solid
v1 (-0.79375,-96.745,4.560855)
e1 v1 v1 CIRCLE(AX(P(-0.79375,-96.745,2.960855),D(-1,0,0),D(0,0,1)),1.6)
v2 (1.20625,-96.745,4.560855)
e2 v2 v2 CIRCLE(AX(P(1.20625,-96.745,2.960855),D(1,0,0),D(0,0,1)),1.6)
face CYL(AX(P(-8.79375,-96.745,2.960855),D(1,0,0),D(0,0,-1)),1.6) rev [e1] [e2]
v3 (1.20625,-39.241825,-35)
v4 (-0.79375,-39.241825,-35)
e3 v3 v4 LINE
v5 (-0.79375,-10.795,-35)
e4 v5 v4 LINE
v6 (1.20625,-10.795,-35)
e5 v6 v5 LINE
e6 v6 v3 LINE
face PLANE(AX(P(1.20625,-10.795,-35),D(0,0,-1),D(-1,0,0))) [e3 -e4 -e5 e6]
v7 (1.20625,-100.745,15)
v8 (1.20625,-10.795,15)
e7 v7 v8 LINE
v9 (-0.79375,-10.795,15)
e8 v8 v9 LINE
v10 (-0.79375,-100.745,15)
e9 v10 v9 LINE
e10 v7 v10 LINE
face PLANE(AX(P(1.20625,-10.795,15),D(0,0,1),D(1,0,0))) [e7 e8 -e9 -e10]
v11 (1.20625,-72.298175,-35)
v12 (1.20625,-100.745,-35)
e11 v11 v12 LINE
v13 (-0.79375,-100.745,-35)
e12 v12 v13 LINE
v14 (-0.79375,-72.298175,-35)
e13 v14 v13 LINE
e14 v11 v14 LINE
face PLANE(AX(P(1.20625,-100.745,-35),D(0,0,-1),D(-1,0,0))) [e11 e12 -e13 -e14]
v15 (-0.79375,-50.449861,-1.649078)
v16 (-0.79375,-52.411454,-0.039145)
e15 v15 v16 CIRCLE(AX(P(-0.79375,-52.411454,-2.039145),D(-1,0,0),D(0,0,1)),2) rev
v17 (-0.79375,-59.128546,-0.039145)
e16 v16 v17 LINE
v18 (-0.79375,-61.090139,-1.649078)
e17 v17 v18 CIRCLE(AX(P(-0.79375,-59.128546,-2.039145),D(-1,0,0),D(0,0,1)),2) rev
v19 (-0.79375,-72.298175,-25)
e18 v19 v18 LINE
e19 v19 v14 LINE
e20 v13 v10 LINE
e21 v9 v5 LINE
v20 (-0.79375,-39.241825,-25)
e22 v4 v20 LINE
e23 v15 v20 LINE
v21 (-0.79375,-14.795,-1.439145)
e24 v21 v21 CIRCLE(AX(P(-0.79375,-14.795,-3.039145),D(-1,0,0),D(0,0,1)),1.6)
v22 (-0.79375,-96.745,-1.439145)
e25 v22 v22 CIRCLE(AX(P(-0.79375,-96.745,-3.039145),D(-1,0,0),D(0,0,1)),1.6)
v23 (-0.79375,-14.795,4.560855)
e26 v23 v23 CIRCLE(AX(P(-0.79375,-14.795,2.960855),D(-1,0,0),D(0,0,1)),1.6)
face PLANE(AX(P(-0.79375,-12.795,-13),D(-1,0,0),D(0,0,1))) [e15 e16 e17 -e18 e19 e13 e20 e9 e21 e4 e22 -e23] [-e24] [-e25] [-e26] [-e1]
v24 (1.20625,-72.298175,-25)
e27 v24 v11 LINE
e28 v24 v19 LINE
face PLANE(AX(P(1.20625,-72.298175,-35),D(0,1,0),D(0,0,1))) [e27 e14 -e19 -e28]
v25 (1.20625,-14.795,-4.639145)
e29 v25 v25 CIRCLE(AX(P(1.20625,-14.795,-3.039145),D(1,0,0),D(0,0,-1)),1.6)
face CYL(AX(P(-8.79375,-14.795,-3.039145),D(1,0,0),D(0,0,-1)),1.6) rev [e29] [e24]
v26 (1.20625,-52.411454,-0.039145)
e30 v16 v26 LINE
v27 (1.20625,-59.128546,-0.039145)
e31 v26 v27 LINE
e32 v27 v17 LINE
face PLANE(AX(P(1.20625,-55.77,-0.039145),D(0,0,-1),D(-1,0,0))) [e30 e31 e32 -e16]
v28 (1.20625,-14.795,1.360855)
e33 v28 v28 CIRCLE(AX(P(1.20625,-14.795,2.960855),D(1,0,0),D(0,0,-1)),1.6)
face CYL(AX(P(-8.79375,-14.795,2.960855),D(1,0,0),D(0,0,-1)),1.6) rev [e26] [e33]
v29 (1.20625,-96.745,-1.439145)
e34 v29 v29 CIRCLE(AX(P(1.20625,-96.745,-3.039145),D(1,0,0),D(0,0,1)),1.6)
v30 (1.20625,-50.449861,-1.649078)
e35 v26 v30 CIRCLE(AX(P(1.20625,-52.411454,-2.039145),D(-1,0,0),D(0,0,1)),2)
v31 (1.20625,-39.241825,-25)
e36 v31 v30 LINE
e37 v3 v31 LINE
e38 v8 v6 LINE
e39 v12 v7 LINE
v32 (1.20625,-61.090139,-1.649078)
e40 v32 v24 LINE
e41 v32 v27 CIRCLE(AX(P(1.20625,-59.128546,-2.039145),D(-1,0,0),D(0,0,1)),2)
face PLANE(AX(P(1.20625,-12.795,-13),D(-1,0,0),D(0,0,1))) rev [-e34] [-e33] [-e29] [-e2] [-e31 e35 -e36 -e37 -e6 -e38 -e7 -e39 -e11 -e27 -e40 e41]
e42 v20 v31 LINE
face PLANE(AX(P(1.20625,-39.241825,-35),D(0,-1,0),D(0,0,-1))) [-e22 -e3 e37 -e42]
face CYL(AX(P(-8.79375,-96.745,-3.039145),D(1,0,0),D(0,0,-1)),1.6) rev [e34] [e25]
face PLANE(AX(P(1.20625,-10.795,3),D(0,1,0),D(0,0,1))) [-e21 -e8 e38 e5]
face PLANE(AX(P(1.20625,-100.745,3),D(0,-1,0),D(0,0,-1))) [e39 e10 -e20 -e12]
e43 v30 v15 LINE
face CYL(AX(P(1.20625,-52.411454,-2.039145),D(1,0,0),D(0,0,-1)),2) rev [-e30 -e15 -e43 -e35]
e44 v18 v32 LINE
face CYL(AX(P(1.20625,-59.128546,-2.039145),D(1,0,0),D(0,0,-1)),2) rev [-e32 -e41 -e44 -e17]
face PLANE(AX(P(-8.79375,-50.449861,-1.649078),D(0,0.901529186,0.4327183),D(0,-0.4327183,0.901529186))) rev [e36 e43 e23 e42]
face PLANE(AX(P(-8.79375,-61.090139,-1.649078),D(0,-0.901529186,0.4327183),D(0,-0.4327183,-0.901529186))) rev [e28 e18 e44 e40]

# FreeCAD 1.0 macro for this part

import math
import FreeCAD as App
import Part
import Sketcher

V = App.Vector
Q = App.Units.Quantity


def edges_at(feature, points):
    """Names of the edges that pass closest to the given points."""
    edges = feature.Shape.Edges
    near = lambda p: min(range(len(edges)), key=lambda i: edges[i].distToShape(Part.Vertex(*p))[0])
    return sorted({f"Edge{near(p) + 1}" for p in points})

doc = App.newDocument("Part")
params = doc.addObject("Spreadsheet::Sheet", "Params")
for row, (alias, value) in enumerate([
    ("sketch1_radius", "2 mm"),
    ("sketch1_width", "35 mm"),
    ("sketch1_width2", "10 mm"),
    ("sketch1_height", "16 mm"),
    ("sketch1_width3", "85.95 mm"),
    ("pad1_length", "2 mm"),
    ("fillet_radius", "2 mm"),
    ("fillet2_radius", "2 mm"),
    ("fillet3_radius", "2 mm"),
    ("fillet4_radius", "2 mm"),
    ("sketch2_height", "12 mm"),
    ("sketch2_width", "89.95 mm"),
    ("pad2_length", "2 mm"),
    ("pocket1_length", "10 mm"),
    ("sketch4_diameter", "3.2 mm"),
    ("pocket2_length", "10 mm"),
    ("sketch5_height", "10 mm"),
    ("pad3_length", "2 mm"),
], start=1):
    params.set(f"A{row}", alias)
    params.set(f"B{row}", "=" + value)
    params.setAlias(f"B{row}", alias)

body = doc.addObject("PartDesign::Body", "Body")

# Sketch on YZ plane
sketch1 = doc.addObject("Sketcher::SketchObject", "Sketch")
body.addObject(sketch1)
sketch1.AttachmentSupport = (doc.YZ_Plane, [""])
sketch1.MapMode = "FlatFace"
sketch1.AttachmentOffset = App.Placement(V(0, 0, -0.79375), App.Rotation())
sketch1.addGeometry([
    Part.ArcOfCircle(Part.Circle(V(-12.8, 3, 0), V(0, 0, 1), 2), math.radians(0), math.radians(90)),  # 0
    Part.LineSegment(V(-10.8, 3, 0), V(-10.8, -13, 0)),  # 1
    Part.ArcOfCircle(Part.Circle(V(-12.8, -13, 0), V(0, 0, 1), 2), math.radians(-90), math.radians(0)),  # 2
    Part.LineSegment(V(-12.8, -15, 0), V(-47.8, -15, 0)),  # 3
    Part.LineSegment(V(-47.8, -15, 0), V(-50.8, 0, 0)),  # 4
    Part.LineSegment(V(-50.8, 0, 0), V(-60.8, 0, 0)),  # 5
    Part.LineSegment(V(-60.8, 0, 0), V(-63.7, -15, 0)),  # 6
    Part.LineSegment(V(-63.7, -15, 0), V(-98.7, -15, 0)),  # 7
    Part.ArcOfCircle(Part.Circle(V(-98.7, -13, 0), V(0, 0, 1), 2), math.radians(-180), math.radians(-90)),  # 8
    Part.LineSegment(V(-100.7, -13, 0), V(-100.7, 3, 0)),  # 9
    Part.ArcOfCircle(Part.Circle(V(-98.7, 3, 0), V(0, 0, 1), 2), math.radians(90), math.radians(180)),  # 10
    Part.LineSegment(V(-98.7, 5, 0), V(-12.8, 5, 0)),  # 11
], False)
sketch1.addConstraint([
    Sketcher.Constraint("Tangent", 0, 1, 1, 1),
    Sketcher.Constraint("Tangent", 1, 2, 2, 2),
    Sketcher.Constraint("Tangent", 2, 1, 3, 1),
    Sketcher.Constraint("Coincident", 3, 2, 4, 1),
    Sketcher.Constraint("Coincident", 4, 2, 5, 1),
    Sketcher.Constraint("Coincident", 5, 2, 6, 1),
    Sketcher.Constraint("Coincident", 6, 2, 7, 1),
    Sketcher.Constraint("Tangent", 7, 2, 8, 2),
    Sketcher.Constraint("Tangent", 8, 1, 9, 1),
    Sketcher.Constraint("Tangent", 9, 2, 10, 2),
    Sketcher.Constraint("Tangent", 10, 1, 11, 1),
    Sketcher.Constraint("Tangent", 11, 2, 0, 2),
    Sketcher.Constraint("Vertical", 1),
    Sketcher.Constraint("Horizontal", 3),
    Sketcher.Constraint("Horizontal", 5),
    Sketcher.Constraint("Horizontal", 7),
    Sketcher.Constraint("Vertical", 9),
    Sketcher.Constraint("Horizontal", 11),
    Sketcher.Constraint("Equal", 0, 2),
    Sketcher.Constraint("Equal", 2, 8),
    Sketcher.Constraint("Equal", 8, 10),
    Sketcher.Constraint("Horizontal", 2, 3, 8, 3),
    Sketcher.Constraint("Equal", 3, 7),
    Sketcher.Constraint("Equal", 4, 6),
    Sketcher.Constraint("Radius", 0, Q("2 mm")),
    Sketcher.Constraint("DistanceX", 3, 2, 3, 1, Q("35 mm")),
    Sketcher.Constraint("DistanceX", 5, 2, 5, 1, Q("10 mm")),
    Sketcher.Constraint("DistanceY", 1, 2, 1, 1, Q("16 mm")),
    Sketcher.Constraint("DistanceY", -1, 1, 0, 3, Q("3 mm")),
    Sketcher.Constraint("DistanceX", 11, 1, 11, 2, Q("85.95 mm")),
    Sketcher.Constraint("DistanceX", 4, 2, -1, 1, Q("50.77 mm")),
    Sketcher.Constraint("Distance", 4, Q("15.25378 mm")),
])
sketch1.setExpression("Constraints[24]", "Params.sketch1_radius")
sketch1.setExpression("Constraints[25]", "Params.sketch1_width")
sketch1.setExpression("Constraints[26]", "Params.sketch1_width2")
sketch1.setExpression("Constraints[27]", "Params.sketch1_height")
sketch1.setExpression("Constraints[29]", "Params.sketch1_width3")
pad1 = doc.addObject("PartDesign::Pad", "Pad")
body.addObject(pad1)
pad1.Profile = sketch1
pad1.setExpression("Length", "Params.pad1_length")
doc.recompute()

fillet = doc.addObject("PartDesign::Fillet", "Fillet")
body.addObject(fillet)
fillet.Base = (pad1, edges_at(pad1, [(0.206, -50.77, -0.039)]))
fillet.setExpression("Radius", "Params.fillet_radius")
doc.recompute()

fillet2 = doc.addObject("PartDesign::Fillet", "Fillet001")
body.addObject(fillet2)
fillet2.Base = (fillet, edges_at(fillet, [(0.206, -47.795, -15)]))
fillet2.setExpression("Radius", "Params.fillet2_radius")
doc.recompute()

fillet3 = doc.addObject("PartDesign::Fillet", "Fillet002")
body.addObject(fillet3)
fillet3.Base = (fillet2, edges_at(fillet2, [(0.206, -60.77, -0.039)]))
fillet3.setExpression("Radius", "Params.fillet3_radius")
doc.recompute()

fillet4 = doc.addObject("PartDesign::Fillet", "Fillet003")
body.addObject(fillet4)
fillet4.Base = (fillet3, edges_at(fillet3, [(0.206, -63.745, -15)]))
fillet4.setExpression("Radius", "Params.fillet4_radius")

# Sketch on YZ plane
sketch2 = doc.addObject("Sketcher::SketchObject", "Sketch001")
body.addObject(sketch2)
sketch2.AttachmentSupport = (doc.YZ_Plane, [""])
sketch2.MapMode = "FlatFace"
sketch2.AttachmentOffset = App.Placement(V(0, 0, -0.79375), App.Rotation())
sketch2.addGeometry([
    Part.LineSegment(V(-11, 3, 0), V(-101, 3, 0)),  # 0
    Part.LineSegment(V(-101, 3, 0), V(-101, 15, 0)),  # 1
    Part.LineSegment(V(-101, 15, 0), V(-11, 15, 0)),  # 2
    Part.LineSegment(V(-11, 15, 0), V(-11, 3, 0)),  # 3
    Part.LineSegment(V(-11, -25, 0), V(-46, -25, 0)),  # 4
    Part.LineSegment(V(-46, -25, 0), V(-48, -13, 0)),  # 5
    Part.LineSegment(V(-48, -13, 0), V(-11, -13, 0)),  # 6
    Part.LineSegment(V(-11, -13, 0), V(-11, -25, 0)),  # 7
    Part.LineSegment(V(-63, -13, 0), V(-66, -25, 0)),  # 8
    Part.LineSegment(V(-66, -25, 0), V(-101, -25, 0)),  # 9
    Part.LineSegment(V(-101, -25, 0), V(-101, -13, 0)),  # 10
    Part.LineSegment(V(-101, -13, 0), V(-63, -13, 0)),  # 11
], False)
sketch2.addConstraint([
    Sketcher.Constraint("Coincident", 0, 2, 1, 1),
    Sketcher.Constraint("Coincident", 1, 2, 2, 1),
    Sketcher.Constraint("Coincident", 2, 2, 3, 1),
    Sketcher.Constraint("Coincident", 3, 2, 0, 1),
    Sketcher.Constraint("Coincident", 4, 2, 5, 1),
    Sketcher.Constraint("Coincident", 5, 2, 6, 1),
    Sketcher.Constraint("Coincident", 6, 2, 7, 1),
    Sketcher.Constraint("Coincident", 7, 2, 4, 1),
    Sketcher.Constraint("Coincident", 8, 2, 9, 1),
    Sketcher.Constraint("Coincident", 9, 2, 10, 1),
    Sketcher.Constraint("Coincident", 10, 2, 11, 1),
    Sketcher.Constraint("Coincident", 11, 2, 8, 1),
    Sketcher.Constraint("Horizontal", 0),
    Sketcher.Constraint("Vertical", 1),
    Sketcher.Constraint("Horizontal", 2),
    Sketcher.Constraint("Vertical", 3),
    Sketcher.Constraint("Horizontal", 4),
    Sketcher.Constraint("Vertical", 7),
    Sketcher.Constraint("Horizontal", 9),
    Sketcher.Constraint("Vertical", 10),
    Sketcher.Constraint("Horizontal", 7, 2, 8, 2),
    Sketcher.Constraint("Horizontal", 6, 2, 10, 2),
    Sketcher.Constraint("Horizontal", 5, 2, 11, 2),
    Sketcher.Constraint("Vertical", 3, 2, 6, 2),
    Sketcher.Constraint("Vertical", 1, 2, 9, 2),
    Sketcher.Constraint("Equal", 4, 9),
    Sketcher.Constraint("Equal", 3, 7),
    Sketcher.Constraint("Equal", 5, 8),
    Sketcher.Constraint("DistanceY", 1, 1, 1, 2, Q("12 mm")),
    Sketcher.Constraint("DistanceY", -1, 1, 0, 2, Q("3 mm")),
    Sketcher.Constraint("DistanceY", 4, 2, -1, 1, Q("25 mm")),
    Sketcher.Constraint("DistanceX", 0, 2, 0, 1, Q("89.95 mm")),
    Sketcher.Constraint("DistanceX", 0, 2, -1, 1, Q("100.745 mm")),
    Sketcher.Constraint("Distance", 5, Q("11.837249 mm")),
    Sketcher.Constraint("DistanceX", 4, 2, 4, 1, Q("35.011477 mm")),
    Sketcher.Constraint("DistanceX", 5, 2, -1, 1, Q("48.115139 mm")),
])
sketch2.setExpression("Constraints[28]", "Params.sketch2_height")
sketch2.setExpression("Constraints[31]", "Params.sketch2_width")
pad2 = doc.addObject("PartDesign::Pad", "Pad001")
body.addObject(pad2)
pad2.Profile = sketch2
pad2.setExpression("Length", "Params.pad2_length")

# Sketch on YZ plane
sketch3 = doc.addObject("Sketcher::SketchObject", "Sketch002")
body.addObject(sketch3)
sketch3.AttachmentSupport = (doc.YZ_Plane, [""])
sketch3.MapMode = "FlatFace"
sketch3.AttachmentOffset = App.Placement(V(0, 0, 1.20625), App.Rotation())
sketch3.addGeometry([
    Part.LineSegment(V(-50, -2, 0), V(-46, -25, 0)),  # 0
    Part.LineSegment(V(-46, -25, 0), V(-39, -25, 0)),  # 1
    Part.LineSegment(V(-39, -25, 0), V(-50, -2, 0)),  # 2
    Part.LineSegment(V(-72, -25, 0), V(-66, -25, 0)),  # 3
    Part.LineSegment(V(-66, -25, 0), V(-61, -2, 0)),  # 4
    Part.LineSegment(V(-61, -2, 0), V(-72, -25, 0)),  # 5
], False)
sketch3.addConstraint([
    Sketcher.Constraint("Coincident", 0, 2, 1, 1),
    Sketcher.Constraint("Coincident", 1, 2, 2, 1),
    Sketcher.Constraint("Coincident", 2, 2, 0, 1),
    Sketcher.Constraint("Coincident", 3, 2, 4, 1),
    Sketcher.Constraint("Coincident", 4, 2, 5, 1),
    Sketcher.Constraint("Coincident", 5, 2, 3, 1),
    Sketcher.Constraint("Horizontal", 1),
    Sketcher.Constraint("Horizontal", 3),
    Sketcher.Constraint("Horizontal", 1, 2, 3, 2),
    Sketcher.Constraint("Horizontal", 2, 2, 4, 2),
    Sketcher.Constraint("Equal", 1, 3),
    Sketcher.Constraint("Equal", 0, 4),
    Sketcher.Constraint("DistanceY", 0, 2, -1, 1, Q("25 mm")),
    Sketcher.Constraint("DistanceX", 1, 1, 1, 2, Q("6.564652 mm")),
    Sketcher.Constraint("Distance", 0, Q("23.80812 mm")),
    Sketcher.Constraint("Distance", 2, Q("25.90146 mm")),
    Sketcher.Constraint("DistanceX", 2, 2, -1, 1, Q("50.449861 mm")),
    Sketcher.Constraint("DistanceX", 4, 2, -1, 1, Q("61.090139 mm")),
])
pocket1 = doc.addObject("PartDesign::Pocket", "Pocket")
body.addObject(pocket1)
pocket1.Profile = sketch3
pocket1.setExpression("Length", "Params.pocket1_length")

# Sketch on YZ plane
sketch4 = doc.addObject("Sketcher::SketchObject", "Sketch003")
body.addObject(sketch4)
sketch4.AttachmentSupport = (doc.YZ_Plane, [""])
sketch4.MapMode = "FlatFace"
sketch4.AttachmentOffset = App.Placement(V(0, 0, 1.20625), App.Rotation())
sketch4.addGeometry([
    Part.Circle(V(-14.8, 3, 0), V(0, 0, 1), 1.6),
    Part.Circle(V(-14.8, -3, 0), V(0, 0, 1), 1.6),
    Part.Circle(V(-96.7, -3, 0), V(0, 0, 1), 1.6),
    Part.Circle(V(-96.7, 3, 0), V(0, 0, 1), 1.6),
], False)
sketch4.addConstraint([
    Sketcher.Constraint("Equal", 0, 1),
    Sketcher.Constraint("Equal", 1, 2),
    Sketcher.Constraint("Equal", 2, 3),
    Sketcher.Constraint("Horizontal", 1, 3, 2, 3),
    Sketcher.Constraint("Horizontal", 0, 3, 3, 3),
    Sketcher.Constraint("Vertical", 0, 3, 1, 3),
    Sketcher.Constraint("Vertical", 2, 3, 3, 3),
    Sketcher.Constraint("Diameter", 0, Q("3.2 mm")),
    Sketcher.Constraint("DistanceY", 1, 3, 0, 3, Q("6 mm")),
    Sketcher.Constraint("DistanceX", 2, 3, 1, 3, Q("81.95 mm")),
    Sketcher.Constraint("DistanceX", 0, 3, -1, 1, Q("14.795 mm")),
    Sketcher.Constraint("DistanceY", -1, 1, 0, 3, Q("2.960855 mm")),
])
sketch4.setExpression("Constraints[7]", "Params.sketch4_diameter")
pocket2 = doc.addObject("PartDesign::Pocket", "Pocket001")
body.addObject(pocket2)
pocket2.Profile = sketch4
pocket2.setExpression("Length", "Params.pocket2_length")

# Sketch on YZ plane
sketch5 = doc.addObject("Sketcher::SketchObject", "Sketch004")
body.addObject(sketch5)
sketch5.AttachmentSupport = (doc.YZ_Plane, [""])
sketch5.MapMode = "FlatFace"
sketch5.AttachmentOffset = App.Placement(V(0, 0, -0.79375), App.Rotation())
sketch5.addGeometry([
    Part.LineSegment(V(-11, -35, 0), V(-39, -35, 0)),  # 0
    Part.LineSegment(V(-39, -35, 0), V(-39, -25, 0)),  # 1
    Part.LineSegment(V(-39, -25, 0), V(-11, -25, 0)),  # 2
    Part.LineSegment(V(-11, -25, 0), V(-11, -35, 0)),  # 3
    Part.LineSegment(V(-72, -35, 0), V(-101, -35, 0)),  # 4
    Part.LineSegment(V(-101, -35, 0), V(-101, -25, 0)),  # 5
    Part.LineSegment(V(-101, -25, 0), V(-72, -25, 0)),  # 6
    Part.LineSegment(V(-72, -25, 0), V(-72, -35, 0)),  # 7
], False)
sketch5.addConstraint([
    Sketcher.Constraint("Coincident", 0, 2, 1, 1),
    Sketcher.Constraint("Coincident", 1, 2, 2, 1),
    Sketcher.Constraint("Coincident", 2, 2, 3, 1),
    Sketcher.Constraint("Coincident", 3, 2, 0, 1),
    Sketcher.Constraint("Coincident", 4, 2, 5, 1),
    Sketcher.Constraint("Coincident", 5, 2, 6, 1),
    Sketcher.Constraint("Coincident", 6, 2, 7, 1),
    Sketcher.Constraint("Coincident", 7, 2, 4, 1),
    Sketcher.Constraint("Horizontal", 0),
    Sketcher.Constraint("Vertical", 1),
    Sketcher.Constraint("Horizontal", 2),
    Sketcher.Constraint("Vertical", 3),
    Sketcher.Constraint("Horizontal", 4),
    Sketcher.Constraint("Vertical", 5),
    Sketcher.Constraint("Horizontal", 6),
    Sketcher.Constraint("Vertical", 7),
    Sketcher.Constraint("Horizontal", 3, 2, 4, 2),
    Sketcher.Constraint("Horizontal", 2, 2, 5, 2),
    Sketcher.Constraint("Equal", 2, 4),
    Sketcher.Constraint("DistanceY", 1, 1, 1, 2, Q("10 mm")),
    Sketcher.Constraint("DistanceY", 0, 2, -1, 1, Q("35 mm")),
    Sketcher.Constraint("DistanceX", 4, 2, 3, 2, Q("89.95 mm")),
    Sketcher.Constraint("DistanceX", 2, 2, -1, 1, Q("10.795 mm")),
    Sketcher.Constraint("DistanceX", 0, 2, 0, 1, Q("28.446825 mm")),
])
sketch5.setExpression("Constraints[19]", "Params.sketch5_height")
pad3 = doc.addObject("PartDesign::Pad", "Pad002")
body.addObject(pad3)
pad3.Profile = sketch5
pad3.setExpression("Length", "Params.pad3_length")

doc.recompute()
